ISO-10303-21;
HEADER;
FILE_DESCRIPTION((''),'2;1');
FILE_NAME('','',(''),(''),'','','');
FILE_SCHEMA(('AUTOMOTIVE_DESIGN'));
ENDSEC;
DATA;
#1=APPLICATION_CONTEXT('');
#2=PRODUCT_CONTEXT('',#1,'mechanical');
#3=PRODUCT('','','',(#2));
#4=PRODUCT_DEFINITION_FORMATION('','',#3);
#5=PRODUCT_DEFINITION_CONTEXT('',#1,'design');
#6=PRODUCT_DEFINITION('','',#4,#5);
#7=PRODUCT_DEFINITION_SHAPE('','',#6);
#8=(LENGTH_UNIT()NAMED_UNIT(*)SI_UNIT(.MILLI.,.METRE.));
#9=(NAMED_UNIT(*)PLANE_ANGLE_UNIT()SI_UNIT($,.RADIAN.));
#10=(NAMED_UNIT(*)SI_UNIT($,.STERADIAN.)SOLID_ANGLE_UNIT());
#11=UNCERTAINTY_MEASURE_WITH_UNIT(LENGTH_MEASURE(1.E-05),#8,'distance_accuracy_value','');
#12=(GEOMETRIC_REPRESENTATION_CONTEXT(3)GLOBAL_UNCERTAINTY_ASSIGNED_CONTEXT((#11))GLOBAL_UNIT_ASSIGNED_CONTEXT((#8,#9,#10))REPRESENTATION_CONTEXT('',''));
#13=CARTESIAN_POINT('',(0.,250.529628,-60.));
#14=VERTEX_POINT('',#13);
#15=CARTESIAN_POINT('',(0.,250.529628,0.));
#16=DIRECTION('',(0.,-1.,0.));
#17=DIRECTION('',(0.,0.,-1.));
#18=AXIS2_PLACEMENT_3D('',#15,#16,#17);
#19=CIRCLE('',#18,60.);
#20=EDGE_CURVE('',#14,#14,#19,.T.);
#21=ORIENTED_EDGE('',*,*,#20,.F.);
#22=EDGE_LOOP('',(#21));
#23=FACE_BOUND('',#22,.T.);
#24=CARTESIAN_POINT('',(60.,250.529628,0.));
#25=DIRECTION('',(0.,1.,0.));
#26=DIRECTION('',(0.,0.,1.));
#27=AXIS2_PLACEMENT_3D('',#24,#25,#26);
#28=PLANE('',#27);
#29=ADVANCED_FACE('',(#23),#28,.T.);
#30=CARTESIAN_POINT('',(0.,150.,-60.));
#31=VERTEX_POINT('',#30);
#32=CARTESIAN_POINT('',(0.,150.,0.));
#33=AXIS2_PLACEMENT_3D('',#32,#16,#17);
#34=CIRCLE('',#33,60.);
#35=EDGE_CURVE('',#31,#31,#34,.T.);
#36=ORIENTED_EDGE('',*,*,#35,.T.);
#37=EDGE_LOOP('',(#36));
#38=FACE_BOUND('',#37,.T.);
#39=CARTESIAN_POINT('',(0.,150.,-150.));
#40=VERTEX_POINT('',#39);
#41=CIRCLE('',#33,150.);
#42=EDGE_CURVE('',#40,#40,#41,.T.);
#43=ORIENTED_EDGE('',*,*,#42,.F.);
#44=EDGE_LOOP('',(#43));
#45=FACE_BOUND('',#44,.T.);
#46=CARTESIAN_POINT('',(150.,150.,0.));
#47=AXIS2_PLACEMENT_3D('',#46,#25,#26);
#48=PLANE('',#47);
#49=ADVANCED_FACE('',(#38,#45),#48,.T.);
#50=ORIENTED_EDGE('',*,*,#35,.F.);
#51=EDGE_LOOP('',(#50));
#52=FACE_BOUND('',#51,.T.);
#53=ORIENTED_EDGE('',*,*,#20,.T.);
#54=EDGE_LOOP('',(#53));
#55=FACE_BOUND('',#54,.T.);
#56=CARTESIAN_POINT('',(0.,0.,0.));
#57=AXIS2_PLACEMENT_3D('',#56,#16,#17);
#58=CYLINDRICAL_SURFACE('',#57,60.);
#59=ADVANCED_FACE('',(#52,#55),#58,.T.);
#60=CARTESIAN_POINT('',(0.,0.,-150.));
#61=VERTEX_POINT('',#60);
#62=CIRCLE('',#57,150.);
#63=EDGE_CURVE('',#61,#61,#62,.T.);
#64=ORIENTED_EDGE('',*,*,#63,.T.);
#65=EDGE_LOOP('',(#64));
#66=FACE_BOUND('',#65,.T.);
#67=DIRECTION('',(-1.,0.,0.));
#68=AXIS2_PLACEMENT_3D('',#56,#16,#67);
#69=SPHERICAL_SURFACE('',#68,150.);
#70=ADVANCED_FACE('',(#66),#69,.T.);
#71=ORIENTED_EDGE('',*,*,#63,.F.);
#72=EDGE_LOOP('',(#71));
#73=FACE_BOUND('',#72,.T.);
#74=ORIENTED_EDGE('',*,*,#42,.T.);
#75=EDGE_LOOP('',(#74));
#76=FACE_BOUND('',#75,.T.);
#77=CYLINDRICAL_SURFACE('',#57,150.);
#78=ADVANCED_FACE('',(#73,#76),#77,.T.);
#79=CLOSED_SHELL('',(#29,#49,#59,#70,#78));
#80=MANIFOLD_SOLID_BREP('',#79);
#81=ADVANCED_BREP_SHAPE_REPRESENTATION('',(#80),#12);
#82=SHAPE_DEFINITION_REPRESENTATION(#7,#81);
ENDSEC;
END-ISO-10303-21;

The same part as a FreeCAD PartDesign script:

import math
import FreeCAD as App
import Part
import Sketcher

doc = App.newDocument("Part")
params = doc.addObject("Spreadsheet::Sheet", "Params")
for row, (alias, value) in enumerate([
    ("sketch1_radius", "150 mm"),
    ("sketch1_width", "90 mm"),
    ("sketch1_height", "150 mm"),
    ("revolution_angle", "360 deg"),
], start=1):
    params.set(f"A{row}", alias)
    params.set(f"B{row}", "=" + value)
    params.setAlias(f"B{row}", alias)

body = doc.addObject("PartDesign::Body", "Body")

sketch1 = body.newObject("Sketcher::SketchObject", "Sketch")
sketch1.AttachmentSupport = (doc.getObject("XY_Plane"), [""])
sketch1.MapMode = "FlatFace"
sketch1.addGeometry(Part.LineSegment(App.Vector(150, 0, 0), App.Vector(150, 150, 0)), False)
sketch1.addGeometry(Part.LineSegment(App.Vector(150, 150, 0), App.Vector(60, 150, 0)), False)
sketch1.addGeometry(Part.LineSegment(App.Vector(60, 150, 0), App.Vector(60, 251, 0)), False)
sketch1.addGeometry(Part.LineSegment(App.Vector(60, 251, 0), App.Vector(0, 251, 0)), False)
sketch1.addGeometry(Part.LineSegment(App.Vector(0, 251, 0), App.Vector(0, -150, 0)), False)
sketch1.addGeometry(Part.ArcOfCircle(Part.Circle(App.Vector(0, 0, 0), App.Vector(0, 0, 1), 150), math.radians(-90), math.radians(0)), False)
sketch1.addConstraint(Sketcher.Constraint("Coincident", 0, 2, 1, 1))
sketch1.addConstraint(Sketcher.Constraint("Coincident", 1, 2, 2, 1))
sketch1.addConstraint(Sketcher.Constraint("Coincident", 2, 2, 3, 1))
sketch1.addConstraint(Sketcher.Constraint("Coincident", 3, 2, 4, 1))
sketch1.addConstraint(Sketcher.Constraint("Coincident", 4, 2, 5, 1))
sketch1.addConstraint(Sketcher.Constraint("Tangent", 5, 2, 0, 1))
sketch1.addConstraint(Sketcher.Constraint("Vertical", 0))
sketch1.addConstraint(Sketcher.Constraint("Horizontal", 1))
sketch1.addConstraint(Sketcher.Constraint("Vertical", 2))
sketch1.addConstraint(Sketcher.Constraint("Horizontal", 3))
sketch1.addConstraint(Sketcher.Constraint("Vertical", 4))
sketch1.addConstraint(Sketcher.Constraint("Coincident", 5, 3, -1, 1))
sketch1.addConstraint(Sketcher.Constraint("PointOnObject", 3, 2, -2))
sketch1.addConstraint(Sketcher.Constraint("Radius", 5, 150.0))
sketch1.addConstraint(Sketcher.Constraint("DistanceX", 1, 2, 1, 1, 90.0))
sketch1.addConstraint(Sketcher.Constraint("DistanceY", 0, 1, 0, 2, 150.0))
sketch1.addConstraint(Sketcher.Constraint("DistanceY", 2, 1, 2, 2, 100.529628))
sketch1.setExpression("Constraints[13]", "Params.sketch1_radius")
sketch1.setExpression("Constraints[14]", "Params.sketch1_width")
sketch1.setExpression("Constraints[15]", "Params.sketch1_height")
revolution = body.newObject("PartDesign::Revolution", "Revolution")
revolution.Profile = sketch1
revolution.ReferenceAxis = (sketch1, ["V_Axis"])
revolution.setExpression("Angle", "Params.revolution_angle")

doc.recompute()
